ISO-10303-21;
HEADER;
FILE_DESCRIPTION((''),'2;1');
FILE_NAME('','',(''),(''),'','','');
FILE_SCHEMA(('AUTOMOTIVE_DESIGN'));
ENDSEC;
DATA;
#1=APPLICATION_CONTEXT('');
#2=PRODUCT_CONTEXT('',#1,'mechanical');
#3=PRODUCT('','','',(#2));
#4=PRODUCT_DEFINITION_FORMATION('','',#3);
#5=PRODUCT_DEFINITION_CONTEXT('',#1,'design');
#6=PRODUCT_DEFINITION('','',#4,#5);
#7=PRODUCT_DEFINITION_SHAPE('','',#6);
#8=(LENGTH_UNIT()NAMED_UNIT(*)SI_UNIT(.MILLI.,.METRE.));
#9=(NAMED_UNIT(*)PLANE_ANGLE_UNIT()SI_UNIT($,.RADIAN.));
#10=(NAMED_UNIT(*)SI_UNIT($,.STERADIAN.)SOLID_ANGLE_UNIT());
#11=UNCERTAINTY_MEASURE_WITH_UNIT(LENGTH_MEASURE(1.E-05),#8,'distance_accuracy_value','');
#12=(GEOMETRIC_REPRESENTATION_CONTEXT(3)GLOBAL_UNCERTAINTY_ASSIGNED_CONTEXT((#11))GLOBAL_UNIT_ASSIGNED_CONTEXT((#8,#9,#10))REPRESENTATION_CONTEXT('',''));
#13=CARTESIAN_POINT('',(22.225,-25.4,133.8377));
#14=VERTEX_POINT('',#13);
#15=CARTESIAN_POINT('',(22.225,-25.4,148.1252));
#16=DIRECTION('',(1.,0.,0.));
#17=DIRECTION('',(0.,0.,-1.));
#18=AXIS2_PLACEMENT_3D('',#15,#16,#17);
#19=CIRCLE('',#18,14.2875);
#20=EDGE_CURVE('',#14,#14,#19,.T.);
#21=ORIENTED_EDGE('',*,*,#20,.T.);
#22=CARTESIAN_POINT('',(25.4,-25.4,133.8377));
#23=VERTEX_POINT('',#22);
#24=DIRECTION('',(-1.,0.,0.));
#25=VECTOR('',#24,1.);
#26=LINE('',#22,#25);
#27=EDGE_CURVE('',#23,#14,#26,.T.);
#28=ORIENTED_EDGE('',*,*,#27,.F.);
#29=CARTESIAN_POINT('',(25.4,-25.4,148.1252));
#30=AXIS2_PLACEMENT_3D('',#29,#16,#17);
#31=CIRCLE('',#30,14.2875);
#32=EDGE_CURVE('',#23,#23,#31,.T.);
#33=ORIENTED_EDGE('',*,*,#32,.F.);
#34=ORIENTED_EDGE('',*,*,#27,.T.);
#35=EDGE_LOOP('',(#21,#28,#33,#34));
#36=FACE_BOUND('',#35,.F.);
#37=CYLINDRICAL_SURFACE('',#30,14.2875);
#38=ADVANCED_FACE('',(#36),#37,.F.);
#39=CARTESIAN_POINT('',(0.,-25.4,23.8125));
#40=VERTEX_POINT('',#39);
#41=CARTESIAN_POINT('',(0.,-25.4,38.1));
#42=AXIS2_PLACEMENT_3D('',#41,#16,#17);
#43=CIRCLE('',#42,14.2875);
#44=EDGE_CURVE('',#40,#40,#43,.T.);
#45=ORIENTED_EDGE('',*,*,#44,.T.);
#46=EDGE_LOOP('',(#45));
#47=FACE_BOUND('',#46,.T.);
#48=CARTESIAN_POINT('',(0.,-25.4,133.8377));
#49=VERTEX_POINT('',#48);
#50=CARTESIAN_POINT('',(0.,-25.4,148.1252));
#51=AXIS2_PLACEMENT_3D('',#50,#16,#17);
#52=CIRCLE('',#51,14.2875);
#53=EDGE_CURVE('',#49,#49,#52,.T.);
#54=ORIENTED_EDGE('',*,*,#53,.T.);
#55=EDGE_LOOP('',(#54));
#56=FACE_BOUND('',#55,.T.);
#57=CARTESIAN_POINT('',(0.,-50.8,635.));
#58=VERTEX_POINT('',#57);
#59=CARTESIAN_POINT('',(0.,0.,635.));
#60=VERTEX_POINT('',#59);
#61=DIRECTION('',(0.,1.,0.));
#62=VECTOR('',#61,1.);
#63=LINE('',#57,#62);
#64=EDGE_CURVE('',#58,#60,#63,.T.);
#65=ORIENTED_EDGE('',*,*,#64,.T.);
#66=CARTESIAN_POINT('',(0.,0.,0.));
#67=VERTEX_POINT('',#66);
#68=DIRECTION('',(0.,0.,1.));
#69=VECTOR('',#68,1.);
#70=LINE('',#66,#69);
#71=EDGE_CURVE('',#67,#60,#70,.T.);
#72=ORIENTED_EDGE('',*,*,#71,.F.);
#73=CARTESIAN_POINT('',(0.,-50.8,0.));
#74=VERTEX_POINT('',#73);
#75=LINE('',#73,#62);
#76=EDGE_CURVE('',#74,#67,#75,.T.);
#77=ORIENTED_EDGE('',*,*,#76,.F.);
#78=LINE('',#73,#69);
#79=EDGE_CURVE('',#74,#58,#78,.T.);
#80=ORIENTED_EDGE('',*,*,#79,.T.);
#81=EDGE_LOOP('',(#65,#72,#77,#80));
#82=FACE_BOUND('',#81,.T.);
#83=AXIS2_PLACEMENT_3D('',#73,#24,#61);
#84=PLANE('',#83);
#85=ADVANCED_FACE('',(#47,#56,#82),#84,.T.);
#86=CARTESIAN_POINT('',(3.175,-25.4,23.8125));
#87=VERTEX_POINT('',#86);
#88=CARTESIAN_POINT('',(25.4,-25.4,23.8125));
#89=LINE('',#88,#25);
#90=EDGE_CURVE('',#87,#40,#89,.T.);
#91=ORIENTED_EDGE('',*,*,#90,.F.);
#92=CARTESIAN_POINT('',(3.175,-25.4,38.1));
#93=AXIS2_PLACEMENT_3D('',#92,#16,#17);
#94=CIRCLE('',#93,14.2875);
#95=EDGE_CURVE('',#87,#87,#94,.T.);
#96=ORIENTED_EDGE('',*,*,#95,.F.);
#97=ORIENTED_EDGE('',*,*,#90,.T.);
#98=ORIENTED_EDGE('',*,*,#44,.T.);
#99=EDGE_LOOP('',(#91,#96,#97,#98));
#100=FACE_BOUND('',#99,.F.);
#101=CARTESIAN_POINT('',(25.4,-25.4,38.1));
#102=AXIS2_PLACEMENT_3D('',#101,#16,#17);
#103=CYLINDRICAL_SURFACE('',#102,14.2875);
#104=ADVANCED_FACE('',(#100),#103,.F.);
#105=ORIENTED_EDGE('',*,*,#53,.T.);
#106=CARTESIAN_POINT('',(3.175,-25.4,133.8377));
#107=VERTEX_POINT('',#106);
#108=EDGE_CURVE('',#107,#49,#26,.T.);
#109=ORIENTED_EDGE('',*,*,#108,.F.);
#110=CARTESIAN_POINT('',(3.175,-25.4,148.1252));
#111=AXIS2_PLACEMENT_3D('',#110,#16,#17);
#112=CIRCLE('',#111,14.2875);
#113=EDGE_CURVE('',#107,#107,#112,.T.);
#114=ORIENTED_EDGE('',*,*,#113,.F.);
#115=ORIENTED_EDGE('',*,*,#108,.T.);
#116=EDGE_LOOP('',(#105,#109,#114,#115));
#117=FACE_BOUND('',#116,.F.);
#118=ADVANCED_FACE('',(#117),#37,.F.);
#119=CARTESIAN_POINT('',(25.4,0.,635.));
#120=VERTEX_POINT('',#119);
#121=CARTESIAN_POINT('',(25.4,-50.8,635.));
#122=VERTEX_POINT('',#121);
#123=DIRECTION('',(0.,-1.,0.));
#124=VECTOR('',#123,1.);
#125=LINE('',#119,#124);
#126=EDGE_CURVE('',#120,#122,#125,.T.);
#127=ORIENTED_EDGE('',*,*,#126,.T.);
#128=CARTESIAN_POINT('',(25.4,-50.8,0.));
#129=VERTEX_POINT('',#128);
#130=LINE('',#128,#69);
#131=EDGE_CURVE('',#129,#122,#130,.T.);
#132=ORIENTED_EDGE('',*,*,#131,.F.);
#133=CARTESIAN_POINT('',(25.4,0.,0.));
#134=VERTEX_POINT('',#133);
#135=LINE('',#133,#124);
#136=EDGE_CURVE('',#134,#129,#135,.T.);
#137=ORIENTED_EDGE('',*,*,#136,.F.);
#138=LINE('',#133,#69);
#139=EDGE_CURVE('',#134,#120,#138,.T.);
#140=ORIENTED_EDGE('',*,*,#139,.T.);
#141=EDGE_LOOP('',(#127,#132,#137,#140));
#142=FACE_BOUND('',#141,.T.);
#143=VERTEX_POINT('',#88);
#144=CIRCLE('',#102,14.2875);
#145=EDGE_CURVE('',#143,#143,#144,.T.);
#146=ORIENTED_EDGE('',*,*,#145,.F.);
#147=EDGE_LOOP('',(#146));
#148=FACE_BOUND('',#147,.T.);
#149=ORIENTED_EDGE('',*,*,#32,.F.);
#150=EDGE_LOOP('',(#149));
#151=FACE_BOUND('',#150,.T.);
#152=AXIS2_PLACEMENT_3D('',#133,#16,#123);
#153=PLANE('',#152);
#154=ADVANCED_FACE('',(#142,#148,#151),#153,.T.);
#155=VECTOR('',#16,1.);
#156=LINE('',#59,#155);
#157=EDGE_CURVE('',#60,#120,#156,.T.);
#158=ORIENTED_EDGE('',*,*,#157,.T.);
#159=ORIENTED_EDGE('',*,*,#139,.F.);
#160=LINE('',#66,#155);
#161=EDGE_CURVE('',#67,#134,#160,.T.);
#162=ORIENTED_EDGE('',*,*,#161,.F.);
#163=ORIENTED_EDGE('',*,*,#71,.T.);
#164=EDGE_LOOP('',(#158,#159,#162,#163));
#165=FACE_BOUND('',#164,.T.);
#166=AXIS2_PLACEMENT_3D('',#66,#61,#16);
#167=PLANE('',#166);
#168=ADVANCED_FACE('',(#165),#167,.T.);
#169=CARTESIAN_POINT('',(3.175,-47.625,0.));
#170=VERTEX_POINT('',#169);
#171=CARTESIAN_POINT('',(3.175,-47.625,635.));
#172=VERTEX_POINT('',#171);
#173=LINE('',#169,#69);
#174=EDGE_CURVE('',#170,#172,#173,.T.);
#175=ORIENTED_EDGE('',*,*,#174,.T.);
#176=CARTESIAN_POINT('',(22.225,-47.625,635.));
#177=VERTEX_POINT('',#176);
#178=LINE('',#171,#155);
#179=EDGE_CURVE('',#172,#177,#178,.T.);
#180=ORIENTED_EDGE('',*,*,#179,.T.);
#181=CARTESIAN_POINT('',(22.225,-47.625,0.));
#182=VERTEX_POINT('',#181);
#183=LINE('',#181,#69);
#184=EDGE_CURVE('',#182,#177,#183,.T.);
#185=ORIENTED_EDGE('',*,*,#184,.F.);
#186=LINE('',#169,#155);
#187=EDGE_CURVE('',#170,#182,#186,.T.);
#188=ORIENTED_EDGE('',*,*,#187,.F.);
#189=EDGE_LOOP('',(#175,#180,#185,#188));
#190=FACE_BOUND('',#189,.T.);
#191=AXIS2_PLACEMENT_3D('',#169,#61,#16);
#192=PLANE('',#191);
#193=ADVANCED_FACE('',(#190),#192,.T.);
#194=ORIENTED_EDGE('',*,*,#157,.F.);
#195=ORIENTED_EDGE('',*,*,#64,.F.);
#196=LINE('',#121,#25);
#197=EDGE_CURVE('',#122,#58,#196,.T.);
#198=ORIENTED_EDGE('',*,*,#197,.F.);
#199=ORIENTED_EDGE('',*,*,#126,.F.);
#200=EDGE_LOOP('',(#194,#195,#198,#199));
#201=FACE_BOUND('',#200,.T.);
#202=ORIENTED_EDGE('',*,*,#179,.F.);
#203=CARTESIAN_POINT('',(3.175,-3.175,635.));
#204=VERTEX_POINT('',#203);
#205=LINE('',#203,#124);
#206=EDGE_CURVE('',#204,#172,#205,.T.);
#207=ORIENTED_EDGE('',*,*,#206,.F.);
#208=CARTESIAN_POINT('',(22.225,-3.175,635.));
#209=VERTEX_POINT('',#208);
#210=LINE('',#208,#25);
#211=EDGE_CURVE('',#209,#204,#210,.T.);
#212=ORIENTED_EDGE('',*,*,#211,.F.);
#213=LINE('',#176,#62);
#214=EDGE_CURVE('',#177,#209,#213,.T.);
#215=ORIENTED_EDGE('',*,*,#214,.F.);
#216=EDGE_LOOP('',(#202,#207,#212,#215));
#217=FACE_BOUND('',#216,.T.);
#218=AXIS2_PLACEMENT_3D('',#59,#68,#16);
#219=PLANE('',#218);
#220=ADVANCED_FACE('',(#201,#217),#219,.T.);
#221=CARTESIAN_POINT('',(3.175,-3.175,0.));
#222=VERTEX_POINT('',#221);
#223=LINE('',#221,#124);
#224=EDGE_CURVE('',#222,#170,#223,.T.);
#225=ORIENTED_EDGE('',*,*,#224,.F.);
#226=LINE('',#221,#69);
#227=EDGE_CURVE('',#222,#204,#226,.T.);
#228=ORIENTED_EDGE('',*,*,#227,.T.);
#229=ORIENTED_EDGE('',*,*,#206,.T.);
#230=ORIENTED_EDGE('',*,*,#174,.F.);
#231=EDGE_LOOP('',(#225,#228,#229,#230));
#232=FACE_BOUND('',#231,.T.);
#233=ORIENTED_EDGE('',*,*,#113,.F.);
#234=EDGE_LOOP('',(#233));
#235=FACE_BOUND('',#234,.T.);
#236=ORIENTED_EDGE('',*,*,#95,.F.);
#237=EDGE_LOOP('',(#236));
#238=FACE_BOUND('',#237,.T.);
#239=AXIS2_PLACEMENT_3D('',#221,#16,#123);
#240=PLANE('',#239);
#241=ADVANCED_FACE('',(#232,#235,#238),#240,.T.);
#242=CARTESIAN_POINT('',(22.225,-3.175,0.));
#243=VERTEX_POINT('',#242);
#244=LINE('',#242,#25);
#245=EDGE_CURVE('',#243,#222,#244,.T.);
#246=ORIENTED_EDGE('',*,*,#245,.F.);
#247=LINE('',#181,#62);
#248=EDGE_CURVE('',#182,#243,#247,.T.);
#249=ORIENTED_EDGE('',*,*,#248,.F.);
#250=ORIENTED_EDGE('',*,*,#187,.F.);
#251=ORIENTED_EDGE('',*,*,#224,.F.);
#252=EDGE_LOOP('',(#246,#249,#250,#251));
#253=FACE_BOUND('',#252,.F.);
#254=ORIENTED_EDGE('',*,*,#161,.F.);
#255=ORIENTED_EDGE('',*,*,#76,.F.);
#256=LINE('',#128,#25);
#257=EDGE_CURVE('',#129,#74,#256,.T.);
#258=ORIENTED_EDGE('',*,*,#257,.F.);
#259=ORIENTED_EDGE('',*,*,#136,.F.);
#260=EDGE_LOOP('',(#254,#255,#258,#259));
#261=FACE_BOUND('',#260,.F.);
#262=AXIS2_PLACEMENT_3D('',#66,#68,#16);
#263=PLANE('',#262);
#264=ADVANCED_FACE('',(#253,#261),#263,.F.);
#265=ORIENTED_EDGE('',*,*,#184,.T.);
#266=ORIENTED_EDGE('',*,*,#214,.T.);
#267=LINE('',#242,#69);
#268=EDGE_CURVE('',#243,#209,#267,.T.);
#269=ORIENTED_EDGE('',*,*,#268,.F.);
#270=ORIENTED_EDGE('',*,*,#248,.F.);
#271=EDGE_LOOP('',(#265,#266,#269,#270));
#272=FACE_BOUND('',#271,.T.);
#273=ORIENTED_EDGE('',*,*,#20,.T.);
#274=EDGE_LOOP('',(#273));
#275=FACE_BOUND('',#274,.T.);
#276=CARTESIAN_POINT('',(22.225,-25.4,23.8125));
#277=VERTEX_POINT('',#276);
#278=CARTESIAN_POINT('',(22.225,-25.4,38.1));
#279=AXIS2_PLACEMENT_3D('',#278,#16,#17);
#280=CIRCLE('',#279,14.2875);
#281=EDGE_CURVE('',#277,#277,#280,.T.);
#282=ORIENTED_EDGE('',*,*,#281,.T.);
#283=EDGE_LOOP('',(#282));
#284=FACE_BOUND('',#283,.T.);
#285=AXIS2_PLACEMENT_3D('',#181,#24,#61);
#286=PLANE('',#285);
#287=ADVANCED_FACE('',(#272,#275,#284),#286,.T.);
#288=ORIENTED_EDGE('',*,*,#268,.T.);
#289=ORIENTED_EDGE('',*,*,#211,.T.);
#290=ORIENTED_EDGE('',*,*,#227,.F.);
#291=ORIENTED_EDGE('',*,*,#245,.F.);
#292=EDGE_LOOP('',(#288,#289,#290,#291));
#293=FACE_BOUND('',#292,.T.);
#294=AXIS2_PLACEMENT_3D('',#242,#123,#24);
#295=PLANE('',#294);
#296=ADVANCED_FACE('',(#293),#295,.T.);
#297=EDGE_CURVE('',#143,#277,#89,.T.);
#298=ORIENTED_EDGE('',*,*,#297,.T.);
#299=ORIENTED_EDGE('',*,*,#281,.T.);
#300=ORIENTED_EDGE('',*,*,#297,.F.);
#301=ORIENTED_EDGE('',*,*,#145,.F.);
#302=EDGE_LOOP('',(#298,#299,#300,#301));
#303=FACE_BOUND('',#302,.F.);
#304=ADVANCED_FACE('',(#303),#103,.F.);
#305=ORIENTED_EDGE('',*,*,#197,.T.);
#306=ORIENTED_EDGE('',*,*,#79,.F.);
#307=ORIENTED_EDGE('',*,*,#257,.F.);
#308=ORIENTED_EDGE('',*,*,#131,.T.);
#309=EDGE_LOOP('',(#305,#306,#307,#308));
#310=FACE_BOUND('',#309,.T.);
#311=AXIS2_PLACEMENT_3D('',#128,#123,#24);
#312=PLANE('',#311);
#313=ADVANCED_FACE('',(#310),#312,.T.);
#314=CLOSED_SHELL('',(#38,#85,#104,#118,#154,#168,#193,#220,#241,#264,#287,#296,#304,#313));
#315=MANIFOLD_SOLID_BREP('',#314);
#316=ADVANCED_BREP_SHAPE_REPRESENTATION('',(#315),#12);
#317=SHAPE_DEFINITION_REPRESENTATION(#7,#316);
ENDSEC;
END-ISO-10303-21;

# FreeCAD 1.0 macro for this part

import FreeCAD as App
import Part
import Sketcher

V = App.Vector
Q = App.Units.Quantity

doc = App.newDocument("Part")
params = doc.addObject("Spreadsheet::Sheet", "Params")
for row, (alias, value) in enumerate([
    ("sketch1_width", "1 in"),
    ("sketch1_height", "2 in"),
    ("pad1_length", "25 in"),
    ("sketch2_diameter", "1.125 in"),
    ("pocket1_length", "1 in"),
], start=1):
    params.set(f"A{row}", alias)
    params.set(f"B{row}", "=" + value)
    params.setAlias(f"B{row}", alias)

body = doc.addObject("PartDesign::Body", "Body")

sketch1 = doc.addObject("Sketcher::SketchObject", "Sketch")
body.addObject(sketch1)
sketch1.AttachmentSupport = (doc.XY_Plane, [""])
sketch1.MapMode = "FlatFace"
sketch1.addGeometry([
    Part.LineSegment(V(25.4, 0, 0), V(0, 0, 0)),
    Part.LineSegment(V(0, 0, 0), V(0, -50.8, 0)),
    Part.LineSegment(V(0, -50.8, 0), V(25.4, -50.8, 0)),
    Part.LineSegment(V(25.4, -50.8, 0), V(25.4, 0, 0)),
    Part.LineSegment(V(3.175, -3.175, 0), V(22.225, -3.175, 0)),
    Part.LineSegment(V(22.225, -3.175, 0), V(22.225, -47.625, 0)),
    Part.LineSegment(V(22.225, -47.625, 0), V(3.175, -47.625, 0)),
    Part.LineSegment(V(3.175, -47.625, 0), V(3.175, -3.175, 0)),
], False)
sketch1.addConstraint([
    Sketcher.Constraint("Coincident", 0, 2, 1, 1),
    Sketcher.Constraint("Coincident", 1, 2, 2, 1),
    Sketcher.Constraint("Coincident", 2, 2, 3, 1),
    Sketcher.Constraint("Coincident", 3, 2, 0, 1),
    Sketcher.Constraint("Coincident", 4, 2, 5, 1),
    Sketcher.Constraint("Coincident", 5, 2, 6, 1),
    Sketcher.Constraint("Coincident", 6, 2, 7, 1),
    Sketcher.Constraint("Coincident", 7, 2, 4, 1),
    Sketcher.Constraint("Horizontal", 0),
    Sketcher.Constraint("Vertical", 1),
    Sketcher.Constraint("Horizontal", 2),
    Sketcher.Constraint("Vertical", 3),
    Sketcher.Constraint("Horizontal", 4),
    Sketcher.Constraint("Vertical", 5),
    Sketcher.Constraint("Horizontal", 6),
    Sketcher.Constraint("Vertical", 7),
    Sketcher.Constraint("Coincident", 0, 2, -1, 1),
    Sketcher.Constraint("DistanceX", 0, 2, 0, 1, Q("1 in")),
    Sketcher.Constraint("DistanceY", 1, 2, 1, 1, Q("2 in")),
    Sketcher.Constraint("DistanceY", 4, 2, -1, 1, Q("0.125 in")),
    Sketcher.Constraint("DistanceX", -1, 1, 6, 2, Q("0.125 in")),
    Sketcher.Constraint("DistanceX", 4, 2, 3, 2, Q("0.125 in")),
    Sketcher.Constraint("DistanceY", 2, 2, 5, 2, Q("0.125 in")),
])
sketch1.setExpression("Constraints[17]", "Params.sketch1_width")
sketch1.setExpression("Constraints[18]", "Params.sketch1_height")
pad1 = doc.addObject("PartDesign::Pad", "Pad")
body.addObject(pad1)
pad1.Profile = sketch1
pad1.setExpression("Length", "Params.pad1_length")

sketch2 = doc.addObject("Sketcher::SketchObject", "Sketch001")
body.addObject(sketch2)
sketch2.AttachmentSupport = (doc.YZ_Plane, [""])
sketch2.MapMode = "FlatFace"
sketch2.AttachmentOffset = App.Placement(V(0, 0, 1 * 25.4), App.Rotation())
sketch2.addGeometry([
    Part.Circle(V(-25.4, 38.1, 0), V(0, 0, 1), 14.2875),
    Part.Circle(V(-25.4, 148.1252, 0), V(0, 0, 1), 14.2875),
], False)
sketch2.addConstraint([
    Sketcher.Constraint("Equal", 0, 1),
    Sketcher.Constraint("Vertical", 0, 3, 1, 3),
    Sketcher.Constraint("Diameter", 0, Q("1.125 in")),
    Sketcher.Constraint("DistanceX", 0, 3, -1, 1, Q("1 in")),
    Sketcher.Constraint("DistanceY", -1, 1, 0, 3, Q("1.5 in")),
    Sketcher.Constraint("DistanceY", 0, 3, 1, 3, Q("4.3317 in")),
])
sketch2.setExpression("Constraints[2]", "Params.sketch2_diameter")
pocket1 = doc.addObject("PartDesign::Pocket", "Pocket")
body.addObject(pocket1)
pocket1.Profile = sketch2
pocket1.setExpression("Length", "Params.pocket1_length")

doc.recompute()
